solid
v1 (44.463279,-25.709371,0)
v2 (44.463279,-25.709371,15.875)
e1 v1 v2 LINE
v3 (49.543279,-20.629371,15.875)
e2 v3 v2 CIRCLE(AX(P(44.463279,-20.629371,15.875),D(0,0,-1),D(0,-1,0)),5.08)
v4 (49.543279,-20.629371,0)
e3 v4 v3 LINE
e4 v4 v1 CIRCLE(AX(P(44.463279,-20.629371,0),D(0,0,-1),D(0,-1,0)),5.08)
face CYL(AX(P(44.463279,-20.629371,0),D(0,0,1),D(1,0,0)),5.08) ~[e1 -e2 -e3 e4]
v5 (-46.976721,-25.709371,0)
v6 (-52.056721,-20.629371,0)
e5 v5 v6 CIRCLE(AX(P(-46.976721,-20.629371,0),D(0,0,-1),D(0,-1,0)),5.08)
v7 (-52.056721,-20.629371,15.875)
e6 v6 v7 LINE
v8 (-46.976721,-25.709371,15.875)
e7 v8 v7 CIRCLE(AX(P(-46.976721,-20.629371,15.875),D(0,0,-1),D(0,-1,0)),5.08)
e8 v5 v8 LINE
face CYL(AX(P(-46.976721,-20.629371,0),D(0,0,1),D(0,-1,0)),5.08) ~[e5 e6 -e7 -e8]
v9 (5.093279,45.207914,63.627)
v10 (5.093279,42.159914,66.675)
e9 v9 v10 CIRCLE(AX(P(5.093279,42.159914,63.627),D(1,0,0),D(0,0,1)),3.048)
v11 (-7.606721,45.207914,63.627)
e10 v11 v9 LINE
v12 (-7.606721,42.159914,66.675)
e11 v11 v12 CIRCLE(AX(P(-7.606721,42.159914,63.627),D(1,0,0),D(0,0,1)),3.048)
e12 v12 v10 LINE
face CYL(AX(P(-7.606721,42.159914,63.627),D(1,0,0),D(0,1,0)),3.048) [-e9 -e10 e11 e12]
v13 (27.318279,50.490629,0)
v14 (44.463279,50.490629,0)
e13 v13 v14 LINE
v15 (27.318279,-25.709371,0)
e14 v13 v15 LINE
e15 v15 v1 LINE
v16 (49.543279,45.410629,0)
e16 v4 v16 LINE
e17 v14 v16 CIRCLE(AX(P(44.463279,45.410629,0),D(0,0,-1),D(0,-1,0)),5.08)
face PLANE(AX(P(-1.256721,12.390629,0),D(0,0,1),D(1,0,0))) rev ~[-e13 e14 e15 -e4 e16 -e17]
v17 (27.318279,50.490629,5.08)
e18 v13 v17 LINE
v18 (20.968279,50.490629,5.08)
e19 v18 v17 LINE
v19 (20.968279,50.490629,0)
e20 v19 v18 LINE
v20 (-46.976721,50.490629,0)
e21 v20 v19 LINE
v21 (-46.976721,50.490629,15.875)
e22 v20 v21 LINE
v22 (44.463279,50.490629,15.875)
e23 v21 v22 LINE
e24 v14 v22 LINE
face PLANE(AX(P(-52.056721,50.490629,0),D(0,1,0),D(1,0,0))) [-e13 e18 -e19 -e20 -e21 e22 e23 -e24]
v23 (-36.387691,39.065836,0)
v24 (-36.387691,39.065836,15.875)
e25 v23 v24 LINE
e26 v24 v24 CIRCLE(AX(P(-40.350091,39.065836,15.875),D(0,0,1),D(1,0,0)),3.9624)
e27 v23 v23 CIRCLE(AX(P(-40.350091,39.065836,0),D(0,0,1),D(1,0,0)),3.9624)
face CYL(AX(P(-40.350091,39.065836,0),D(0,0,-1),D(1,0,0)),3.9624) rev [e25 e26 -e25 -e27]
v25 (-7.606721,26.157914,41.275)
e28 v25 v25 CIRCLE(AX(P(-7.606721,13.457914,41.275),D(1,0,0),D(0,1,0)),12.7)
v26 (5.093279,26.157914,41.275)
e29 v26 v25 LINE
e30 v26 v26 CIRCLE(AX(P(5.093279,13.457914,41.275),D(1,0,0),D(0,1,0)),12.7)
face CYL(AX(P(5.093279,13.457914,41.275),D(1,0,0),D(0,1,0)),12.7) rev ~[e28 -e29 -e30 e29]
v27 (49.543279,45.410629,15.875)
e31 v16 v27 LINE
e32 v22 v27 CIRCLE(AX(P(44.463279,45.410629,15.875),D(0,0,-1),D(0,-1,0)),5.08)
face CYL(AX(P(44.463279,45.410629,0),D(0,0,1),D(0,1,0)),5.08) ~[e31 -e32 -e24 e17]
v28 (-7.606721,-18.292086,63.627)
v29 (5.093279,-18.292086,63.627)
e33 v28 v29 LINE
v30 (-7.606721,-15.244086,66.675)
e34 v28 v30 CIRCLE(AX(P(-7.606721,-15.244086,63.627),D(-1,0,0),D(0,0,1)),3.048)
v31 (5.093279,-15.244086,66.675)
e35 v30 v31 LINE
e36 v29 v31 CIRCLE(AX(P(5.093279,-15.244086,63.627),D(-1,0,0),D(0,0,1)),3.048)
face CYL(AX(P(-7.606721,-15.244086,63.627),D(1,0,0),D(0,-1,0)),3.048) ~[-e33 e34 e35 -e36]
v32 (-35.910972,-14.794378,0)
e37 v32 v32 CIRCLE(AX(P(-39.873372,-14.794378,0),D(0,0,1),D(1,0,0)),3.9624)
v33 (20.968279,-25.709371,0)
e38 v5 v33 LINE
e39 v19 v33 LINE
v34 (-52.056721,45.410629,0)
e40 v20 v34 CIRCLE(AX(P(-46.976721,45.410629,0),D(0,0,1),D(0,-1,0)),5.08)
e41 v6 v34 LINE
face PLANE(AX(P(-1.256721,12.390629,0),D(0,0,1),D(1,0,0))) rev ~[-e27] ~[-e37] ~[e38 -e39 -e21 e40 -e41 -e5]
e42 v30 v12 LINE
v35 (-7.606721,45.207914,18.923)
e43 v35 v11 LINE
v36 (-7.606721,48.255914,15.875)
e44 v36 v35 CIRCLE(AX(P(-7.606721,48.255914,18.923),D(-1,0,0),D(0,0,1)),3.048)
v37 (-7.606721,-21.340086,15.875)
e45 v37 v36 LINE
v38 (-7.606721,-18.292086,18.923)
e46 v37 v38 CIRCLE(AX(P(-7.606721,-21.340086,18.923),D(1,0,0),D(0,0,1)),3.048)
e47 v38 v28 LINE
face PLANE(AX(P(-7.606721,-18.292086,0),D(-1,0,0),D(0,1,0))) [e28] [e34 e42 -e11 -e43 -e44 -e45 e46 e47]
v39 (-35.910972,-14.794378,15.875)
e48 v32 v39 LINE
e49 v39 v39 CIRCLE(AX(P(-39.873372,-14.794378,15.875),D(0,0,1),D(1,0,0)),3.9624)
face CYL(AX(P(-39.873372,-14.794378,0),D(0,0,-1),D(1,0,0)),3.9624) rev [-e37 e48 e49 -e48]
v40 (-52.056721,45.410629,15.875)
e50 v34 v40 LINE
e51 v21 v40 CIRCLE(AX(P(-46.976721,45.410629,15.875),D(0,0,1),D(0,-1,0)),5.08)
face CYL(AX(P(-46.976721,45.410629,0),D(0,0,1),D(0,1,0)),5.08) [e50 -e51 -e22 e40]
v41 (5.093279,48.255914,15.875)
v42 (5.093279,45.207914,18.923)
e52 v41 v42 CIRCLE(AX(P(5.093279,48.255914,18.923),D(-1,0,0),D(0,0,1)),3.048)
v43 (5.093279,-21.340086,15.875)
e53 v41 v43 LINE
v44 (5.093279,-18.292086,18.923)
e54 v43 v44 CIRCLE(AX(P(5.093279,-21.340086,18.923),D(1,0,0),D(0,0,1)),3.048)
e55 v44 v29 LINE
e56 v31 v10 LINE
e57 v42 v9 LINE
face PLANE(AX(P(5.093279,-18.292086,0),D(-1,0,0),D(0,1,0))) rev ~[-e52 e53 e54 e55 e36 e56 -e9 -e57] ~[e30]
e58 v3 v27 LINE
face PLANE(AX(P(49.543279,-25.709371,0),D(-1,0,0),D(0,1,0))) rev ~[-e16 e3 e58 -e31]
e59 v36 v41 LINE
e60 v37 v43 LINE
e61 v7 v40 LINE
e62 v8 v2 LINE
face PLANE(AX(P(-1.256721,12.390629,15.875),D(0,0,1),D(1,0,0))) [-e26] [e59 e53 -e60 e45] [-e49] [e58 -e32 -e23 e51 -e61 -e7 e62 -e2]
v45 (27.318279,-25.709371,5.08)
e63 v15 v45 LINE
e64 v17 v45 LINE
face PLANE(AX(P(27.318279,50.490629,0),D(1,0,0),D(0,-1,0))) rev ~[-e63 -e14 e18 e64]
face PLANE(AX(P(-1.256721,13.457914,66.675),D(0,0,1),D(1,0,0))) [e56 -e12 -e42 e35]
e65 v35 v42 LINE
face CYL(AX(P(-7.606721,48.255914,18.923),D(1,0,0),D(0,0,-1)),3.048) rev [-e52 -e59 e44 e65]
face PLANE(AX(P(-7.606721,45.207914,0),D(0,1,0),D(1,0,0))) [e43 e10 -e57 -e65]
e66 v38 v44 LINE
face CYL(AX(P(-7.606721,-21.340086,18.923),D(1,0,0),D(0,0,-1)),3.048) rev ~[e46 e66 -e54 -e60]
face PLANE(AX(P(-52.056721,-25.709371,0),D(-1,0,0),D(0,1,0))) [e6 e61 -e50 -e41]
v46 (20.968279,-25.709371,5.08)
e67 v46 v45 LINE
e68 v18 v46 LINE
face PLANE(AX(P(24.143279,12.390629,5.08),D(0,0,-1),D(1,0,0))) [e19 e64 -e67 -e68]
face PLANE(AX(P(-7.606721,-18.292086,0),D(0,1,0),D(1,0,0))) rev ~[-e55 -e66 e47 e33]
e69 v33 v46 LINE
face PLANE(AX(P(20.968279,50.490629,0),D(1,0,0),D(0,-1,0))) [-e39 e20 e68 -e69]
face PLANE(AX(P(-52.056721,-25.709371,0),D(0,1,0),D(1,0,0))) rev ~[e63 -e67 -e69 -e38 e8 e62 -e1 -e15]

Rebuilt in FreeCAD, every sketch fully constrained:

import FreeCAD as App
import Part
import Sketcher
from FreeCAD import Vector
Q = App.Units.Quantity


def edges_at(feature, points):
    """Names of the edges that pass closest to the given points."""
    edges = feature.Shape.Edges
    near = lambda p: min(range(len(edges)), key=lambda i: edges[i].distToShape(Part.Vertex(*p))[0])
    return sorted({f"Edge{near(p) + 1}" for p in points})

doc = App.newDocument("Part")
params = doc.addObject("Spreadsheet::Sheet", "Params")
for row, (alias, value) in enumerate([
    ("sketch1_width", "0.5 in"),
    ("sketch1_height", "2.5 in"),
    ("pad1_length", "2.625 in"),
    ("sketch2_width", "4 in"),
    ("sketch2_height", "3 in"),
    ("sketch2_diameter", "0.312 in"),
    ("sketch2_width2", "0.5 in"),
    ("sketch2_height2", "2.5 in"),
    ("pad2_length", "0.625 in"),
    ("fillet_radius", "0.12 in"),
    ("fillet2_radius", "0.2 in"),
    ("sketch3_height", "3 in"),
    ("sketch3_width", "0.25 in"),
    ("pocket1_length", "0.2 in"),
    ("sketch4_diameter", "1 in"),
    ("pocket2_length", "1.48 in"),
], start=1):
    params.set(f"A{row}", alias)
    params.set(f"B{row}", "=" + value)
    params.setAlias(f"B{row}", alias)

body = doc.addObject("PartDesign::Body", "Body")

# Sketch on XY plane
sketch1 = body.newObject("Sketcher::SketchObject", "Sketch")
sketch1.AttachmentSupport = (doc.getObject("XY_Plane"), [""])
sketch1.MapMode = "FlatFace"
sketch1.addGeometry([
    Part.LineSegment(Vector(-8, 45, 0), Vector(-8, -18, 0)),
    Part.LineSegment(Vector(-8, -18, 0), Vector(5, -18, 0)),
    Part.LineSegment(Vector(5, -18, 0), Vector(5, 45, 0)),
    Part.LineSegment(Vector(5, 45, 0), Vector(-8, 45, 0)),
], False)
sketch1.addConstraint([
    Sketcher.Constraint("Coincident", 0, 2, 1, 1),
    Sketcher.Constraint("Coincident", 1, 2, 2, 1),
    Sketcher.Constraint("Coincident", 2, 2, 3, 1),
    Sketcher.Constraint("Coincident", 3, 2, 0, 1),
    Sketcher.Constraint("Vertical", 0),
    Sketcher.Constraint("Horizontal", 1),
    Sketcher.Constraint("Vertical", 2),
    Sketcher.Constraint("Horizontal", 3),
    Sketcher.Constraint("DistanceX", 1, 1, 1, 2, Q("0.5 in")),
    Sketcher.Constraint("DistanceY", 0, 2, 0, 1, Q("2.5 in")),
    Sketcher.Constraint("DistanceX", 0, 2, -1, 1, 7.606721),
    Sketcher.Constraint("DistanceY", 0, 2, -1, 1, 18.292086),
])
sketch1.setExpression("Constraints[8]", "Params.sketch1_width")
sketch1.setExpression("Constraints[9]", "Params.sketch1_height")
pad1 = body.newObject("PartDesign::Pad", "Pad")
pad1.Profile = sketch1
pad1.setExpression("Length", "Params.pad1_length")

# Sketch on XY plane
sketch2 = body.newObject("Sketcher::SketchObject", "Sketch001")
sketch2.AttachmentSupport = (doc.getObject("XY_Plane"), [""])
sketch2.MapMode = "FlatFace"
sketch2.addGeometry([
    Part.LineSegment(Vector(-52.1, 50.5, 0), Vector(-52.1, -25.7, 0)),  # 0
    Part.LineSegment(Vector(-52.1, -25.7, 0), Vector(49.5, -25.7, 0)),  # 1
    Part.LineSegment(Vector(49.5, -25.7, 0), Vector(49.5, 50.5, 0)),  # 2
    Part.LineSegment(Vector(49.5, 50.5, 0), Vector(-52.1, 50.5, 0)),  # 3
    Part.Circle(Vector(-39.9, -14.8, 0), Vector(0, 0, 1), 4),  # 4
    Part.Circle(Vector(-40.4, 39.1, 0), Vector(0, 0, 1), 4),  # 5
    Part.LineSegment(Vector(5.1, -18.3, 0), Vector(-7.6, -18.3, 0)),  # 6
    Part.LineSegment(Vector(-7.6, -18.3, 0), Vector(-7.6, 45.2, 0)),  # 7
    Part.LineSegment(Vector(-7.6, 45.2, 0), Vector(5.1, 45.2, 0)),  # 8
    Part.LineSegment(Vector(5.1, 45.2, 0), Vector(5.1, -18.3, 0)),  # 9
], False)
sketch2.addConstraint([
    Sketcher.Constraint("Coincident", 0, 2, 1, 1),
    Sketcher.Constraint("Coincident", 1, 2, 2, 1),
    Sketcher.Constraint("Coincident", 2, 2, 3, 1),
    Sketcher.Constraint("Coincident", 3, 2, 0, 1),
    Sketcher.Constraint("Coincident", 6, 2, 7, 1),
    Sketcher.Constraint("Coincident", 7, 2, 8, 1),
    Sketcher.Constraint("Coincident", 8, 2, 9, 1),
    Sketcher.Constraint("Coincident", 9, 2, 6, 1),
    Sketcher.Constraint("Vertical", 0),
    Sketcher.Constraint("Horizontal", 1),
    Sketcher.Constraint("Vertical", 2),
    Sketcher.Constraint("Horizontal", 3),
    Sketcher.Constraint("Horizontal", 6),
    Sketcher.Constraint("Vertical", 7),
    Sketcher.Constraint("Horizontal", 8),
    Sketcher.Constraint("Vertical", 9),
    Sketcher.Constraint("Equal", 4, 5),
    Sketcher.Constraint("DistanceX", 1, 1, 1, 2, Q("4 in")),
    Sketcher.Constraint("DistanceY", 0, 2, 0, 1, Q("3 in")),
    Sketcher.Constraint("Diameter", 4, Q("0.312 in")),
    Sketcher.Constraint("DistanceX", 6, 2, 6, 1, Q("0.5 in")),
    Sketcher.Constraint("DistanceY", 7, 1, 7, 2, Q("2.5 in")),
    Sketcher.Constraint("DistanceX", 0, 2, 6, 2, Q("1.75 in")),
    Sketcher.Constraint("DistanceX", 5, 3, -1, 1, 40.350091),
    Sketcher.Constraint("DistanceX", 0, 2, -1, 1, 52.056721),
    Sketcher.Constraint("DistanceY", 0, 2, -1, 1, 25.709371),
    Sketcher.Constraint("DistanceX", 5, 3, 4, 3, 0.476719),
    Sketcher.Constraint("DistanceY", 6, 2, 4, 3, 3.497708),
    Sketcher.Constraint("DistanceY", 5, 3, 7, 2, 6.142078),
    Sketcher.Constraint("DistanceY", 4, 3, -1, 1, 14.794378),
])
sketch2.setExpression("Constraints[17]", "Params.sketch2_width")
sketch2.setExpression("Constraints[18]", "Params.sketch2_height")
sketch2.setExpression("Constraints[19]", "Params.sketch2_diameter")
sketch2.setExpression("Constraints[20]", "Params.sketch2_width2")
sketch2.setExpression("Constraints[21]", "Params.sketch2_height2")
pad2 = body.newObject("PartDesign::Pad", "Pad001")
pad2.Profile = sketch2
pad2.setExpression("Length", "Params.pad2_length")
doc.recompute()

fillet = body.newObject("PartDesign::Fillet", "Fillet")
fillet.Base = (pad2, edges_at(pad2, [
    (-1.257, -18.292, 66.675),
    (-1.257, 45.208, 66.675),
    (-1.257, -18.292, 15.875),
    (-1.257, 45.208, 15.875),
]))
fillet.setExpression("Radius", "Params.fillet_radius")
doc.recompute()

fillet2 = body.newObject("PartDesign::Fillet", "Fillet001")
fillet2.Base = (fillet, edges_at(fillet, [
    (-52.057, -25.709, 7.938),
    (49.543, -25.709, 7.938),
    (49.543, 50.491, 7.938),
    (-52.057, 50.491, 7.938),
]))
fillet2.setExpression("Radius", "Params.fillet2_radius")

# Sketch on XY plane
sketch3 = body.newObject("Sketcher::SketchObject", "Sketch002")
sketch3.AttachmentSupport = (doc.getObject("XY_Plane"), [""])
sketch3.MapMode = "FlatFace"
sketch3.addGeometry([
    Part.LineSegment(Vector(21, -26, 0), Vector(21, 50, 0)),
    Part.LineSegment(Vector(21, 50, 0), Vector(27, 50, 0)),
    Part.LineSegment(Vector(27, 50, 0), Vector(27, -26, 0)),
    Part.LineSegment(Vector(27, -26, 0), Vector(21, -26, 0)),
], False)
sketch3.addConstraint([
    Sketcher.Constraint("Coincident", 0, 2, 1, 1),
    Sketcher.Constraint("Coincident", 1, 2, 2, 1),
    Sketcher.Constraint("Coincident", 2, 2, 3, 1),
    Sketcher.Constraint("Coincident", 3, 2, 0, 1),
    Sketcher.Constraint("Vertical", 0),
    Sketcher.Constraint("Horizontal", 1),
    Sketcher.Constraint("Vertical", 2),
    Sketcher.Constraint("Horizontal", 3),
    Sketcher.Constraint("DistanceY", 0, 1, 0, 2, Q("3 in")),
    Sketcher.Constraint("DistanceX", 1, 1, 1, 2, Q("0.25 in")),
    Sketcher.Constraint("DistanceX", -1, 1, 0, 2, 20.968279),
    Sketcher.Constraint("DistanceY", -1, 1, 0, 2, 50.490629),
])
sketch3.setExpression("Constraints[8]", "Params.sketch3_height")
sketch3.setExpression("Constraints[9]", "Params.sketch3_width")
pocket1 = body.newObject("PartDesign::Pocket", "Pocket")
pocket1.Profile = sketch3
pocket1.setExpression("Length", "Params.pocket1_length")
pocket1.Reversed = True

# Sketch on YZ plane
sketch4 = body.newObject("Sketcher::SketchObject", "Sketch003")
sketch4.AttachmentSupport = (doc.getObject("YZ_Plane"), [""])
sketch4.MapMode = "FlatFace"
sketch4.AttachmentOffset = App.Placement(Vector(0, 0, 5.093279), App.Rotation())
sketch4.addGeometry(Part.Circle(Vector(13, 41, 0), Vector(0, 0, 1), 13), False)
sketch4.addConstraint([
    Sketcher.Constraint("Diameter", 0, Q("1 in")),
    Sketcher.Constraint("DistanceY", -1, 1, 0, 3, Q("1.625 in")),
    Sketcher.Constraint("DistanceX", -1, 1, 0, 3, 13.457914),
])
sketch4.setExpression("Constraints[0]", "Params.sketch4_diameter")
pocket2 = body.newObject("PartDesign::Pocket", "Pocket001")
pocket2.Profile = sketch4
pocket2.setExpression("Length", "Params.pocket2_length")

doc.recompute()
